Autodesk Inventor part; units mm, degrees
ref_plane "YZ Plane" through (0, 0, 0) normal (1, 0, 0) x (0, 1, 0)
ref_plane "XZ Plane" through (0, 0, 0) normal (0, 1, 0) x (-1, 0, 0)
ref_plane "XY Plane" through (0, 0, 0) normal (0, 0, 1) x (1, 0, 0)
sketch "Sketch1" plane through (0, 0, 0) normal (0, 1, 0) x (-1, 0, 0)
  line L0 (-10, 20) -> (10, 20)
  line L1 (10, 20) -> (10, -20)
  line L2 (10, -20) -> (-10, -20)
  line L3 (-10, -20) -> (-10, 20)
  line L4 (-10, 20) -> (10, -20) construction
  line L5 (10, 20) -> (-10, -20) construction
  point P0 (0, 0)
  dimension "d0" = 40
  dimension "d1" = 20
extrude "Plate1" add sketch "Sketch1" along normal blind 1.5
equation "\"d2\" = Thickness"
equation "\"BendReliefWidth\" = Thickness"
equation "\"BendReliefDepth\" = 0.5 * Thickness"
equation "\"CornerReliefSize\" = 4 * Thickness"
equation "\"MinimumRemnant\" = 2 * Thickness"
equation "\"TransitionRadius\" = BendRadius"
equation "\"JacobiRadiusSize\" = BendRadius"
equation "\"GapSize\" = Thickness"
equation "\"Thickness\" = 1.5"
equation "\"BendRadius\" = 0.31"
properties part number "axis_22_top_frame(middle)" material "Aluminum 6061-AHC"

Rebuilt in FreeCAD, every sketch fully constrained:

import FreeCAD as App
import Part
import Sketcher
from FreeCAD import Vector
Q = App.Units.Quantity

doc = App.newDocument("Part")
body = doc.addObject("PartDesign::Body", "Body")

# Sketch on XZ plane
sketch1 = body.newObject("Sketcher::SketchObject", "Sketch")
sketch1.AttachmentSupport = (doc.getObject("XZ_Plane"), [""])
sketch1.MapMode = "FlatFace"
sketch1.addGeometry([
    Part.LineSegment(Vector(-10, 20, 0), Vector(10, 20, 0)),
    Part.LineSegment(Vector(10, 20, 0), Vector(10, -20, 0)),
    Part.LineSegment(Vector(10, -20, 0), Vector(-10, -20, 0)),
    Part.LineSegment(Vector(-10, -20, 0), Vector(-10, 20, 0)),
], False)
sketch1.addConstraint([
    Sketcher.Constraint("Coincident", 0, 2, 1, 1),
    Sketcher.Constraint("Coincident", 1, 2, 2, 1),
    Sketcher.Constraint("Coincident", 2, 2, 3, 1),
    Sketcher.Constraint("Coincident", 3, 2, 0, 1),
    Sketcher.Constraint("Horizontal", 0),
    Sketcher.Constraint("Vertical", 1),
    Sketcher.Constraint("Horizontal", 2),
    Sketcher.Constraint("Vertical", 3),
    Sketcher.Constraint("Symmetric", 0, 2, 2, 2, -1, 1),
    Sketcher.Constraint("DistanceX", 0, 1, 0, 2, Q("20 mm")),
    Sketcher.Constraint("DistanceY", 1, 2, 1, 1, Q("40 mm")),
])
pad1 = body.newObject("PartDesign::Pad", "Pad")
pad1.Profile = sketch1
pad1.Length = 1.5
pad1.Reversed = True

doc.recompute()
